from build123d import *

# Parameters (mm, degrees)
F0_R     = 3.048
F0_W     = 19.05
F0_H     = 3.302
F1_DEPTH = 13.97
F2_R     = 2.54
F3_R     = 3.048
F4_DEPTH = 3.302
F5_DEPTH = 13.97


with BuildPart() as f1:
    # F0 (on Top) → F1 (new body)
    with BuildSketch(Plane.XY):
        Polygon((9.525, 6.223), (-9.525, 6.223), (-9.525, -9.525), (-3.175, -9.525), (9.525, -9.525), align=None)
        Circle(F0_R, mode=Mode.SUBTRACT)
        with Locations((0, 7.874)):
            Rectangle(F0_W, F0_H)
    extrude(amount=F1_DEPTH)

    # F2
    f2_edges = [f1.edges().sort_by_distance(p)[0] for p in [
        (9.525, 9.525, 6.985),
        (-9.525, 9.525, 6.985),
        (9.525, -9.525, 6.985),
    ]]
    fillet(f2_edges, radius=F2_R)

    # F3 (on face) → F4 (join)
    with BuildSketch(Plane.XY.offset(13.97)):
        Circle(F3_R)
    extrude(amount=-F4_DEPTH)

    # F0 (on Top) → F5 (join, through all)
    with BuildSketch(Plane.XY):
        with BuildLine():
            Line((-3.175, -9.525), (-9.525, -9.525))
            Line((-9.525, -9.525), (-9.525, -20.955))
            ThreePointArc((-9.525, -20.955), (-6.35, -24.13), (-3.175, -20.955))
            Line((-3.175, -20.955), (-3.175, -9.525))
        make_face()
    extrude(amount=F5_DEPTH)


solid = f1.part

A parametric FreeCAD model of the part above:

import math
import FreeCAD as App
import Part
import Sketcher
Q = App.Units.Quantity


def edges_at(feature, points):
    """Names of the edges that pass closest to the given points."""
    edges = feature.Shape.Edges
    near = lambda p: min(range(len(edges)), key=lambda i: edges[i].distToShape(Part.Vertex(*p))[0])
    return sorted({f"Edge{near(p) + 1}" for p in points})

doc = App.newDocument("Part")
body = doc.addObject("PartDesign::Body", "Body")

# Sketch on XY plane
sketch1 = body.newObject("Sketcher::SketchObject", "Sketch")
sketch1.AttachmentSupport = (doc.getObject("XY_Plane"), [""])
sketch1.MapMode = "FlatFace"
sketch1.addGeometry([
    Part.LineSegment(App.Vector(9.5, -9.5, 0), App.Vector(9.5, 9.5, 0)),  # 0
    Part.LineSegment(App.Vector(9.5, 9.5, 0), App.Vector(-9.5, 9.5, 0)),  # 1
    Part.LineSegment(App.Vector(-9.5, 9.5, 0), App.Vector(-9.5, -9.5, 0)),  # 2
    Part.LineSegment(App.Vector(-9.5, -9.5, 0), App.Vector(9.5, -9.5, 0)),  # 3
    Part.Circle(App.Vector(0, 0, 0), App.Vector(0, 0, 1), 3),  # 4
], False)
sketch1.addConstraint([
    Sketcher.Constraint("Coincident", 0, 2, 1, 1),
    Sketcher.Constraint("Coincident", 1, 2, 2, 1),
    Sketcher.Constraint("Coincident", 2, 2, 3, 1),
    Sketcher.Constraint("Coincident", 3, 2, 0, 1),
    Sketcher.Constraint("Vertical", 0),
    Sketcher.Constraint("Horizontal", 1),
    Sketcher.Constraint("Vertical", 2),
    Sketcher.Constraint("Horizontal", 3),
    Sketcher.Constraint("Coincident", 4, 3, -1, 1),
    Sketcher.Constraint("Symmetric", 0, 2, 2, 2, -1, 1),
    Sketcher.Constraint("Equal", 3, 0),
    Sketcher.Constraint("Diameter", 4, Q("0.24 in")),
    Sketcher.Constraint("DistanceX", 1, 2, 1, 1, Q("0.75 in")),
])
pad1 = body.newObject("PartDesign::Pad", "Pad")
pad1.Profile = sketch1
pad1.Length = Q("0.55 in")
doc.recompute()

fillet = body.newObject("PartDesign::Fillet", "Fillet")
fillet.Base = (pad1, edges_at(pad1, [(9.525, 9.525, 6.985), (-9.525, 9.525, 6.985), (9.525, -9.525, 6.985)]))
fillet.Radius = Q("0.1 in")

# Sketch on XY plane
sketch2 = body.newObject("Sketcher::SketchObject", "Sketch001")
sketch2.AttachmentSupport = (doc.getObject("XY_Plane"), [""])
sketch2.MapMode = "FlatFace"
sketch2.AttachmentOffset = App.Placement(App.Vector(0, 0, 0.55 * 25.4), App.Rotation())
sketch2.addGeometry(Part.Circle(App.Vector(0, 0, 0), App.Vector(0, 0, 1), 3), False)
sketch2.addConstraint([
    Sketcher.Constraint("Coincident", 0, 3, -1, 1),
    Sketcher.Constraint("Diameter", 0, Q("0.24 in")),
])
pad2 = body.newObject("PartDesign::Pad", "Pad001")
pad2.Profile = sketch2
pad2.Length = Q("0.13 in")
pad2.Reversed = True

# Sketch on XY plane
sketch3 = body.newObject("Sketcher::SketchObject", "Sketch002")
sketch3.AttachmentSupport = (doc.getObject("XY_Plane"), [""])
sketch3.MapMode = "FlatFace"
sketch3.addGeometry([
    Part.LineSegment(App.Vector(-3.2, -9.5, 0), App.Vector(-9.5, -9.5, 0)),
    Part.LineSegment(App.Vector(-9.5, -9.5, 0), App.Vector(-9.5, -21, 0)),
    Part.ArcOfCircle(Part.Circle(App.Vector(-6.3, -21, 0), App.Vector(0, 0, 1), 3.2), math.radians(180), math.radians(360)),
    Part.LineSegment(App.Vector(-3.2, -21, 0), App.Vector(-3.2, -9.5, 0)),
], False)
sketch3.addConstraint([
    Sketcher.Constraint("Coincident", 0, 2, 1, 1),
    Sketcher.Constraint("Tangent", 1, 2, 2, 1),
    Sketcher.Constraint("Tangent", 2, 2, 3, 1),
    Sketcher.Constraint("Coincident", 3, 2, 0, 1),
    Sketcher.Constraint("Horizontal", 0),
    Sketcher.Constraint("Vertical", 1),
    Sketcher.Constraint("Vertical", 3),
    Sketcher.Constraint("Radius", 2, Q("0.125 in")),
    Sketcher.Constraint("DistanceY", 1, 2, 1, 1, Q("0.45 in")),
    Sketcher.Constraint("DistanceX", 2, 3, -1, 1, Q("0.25 in")),
    Sketcher.Constraint("DistanceY", 2, 3, -1, 1, Q("0.825 in")),
])
pad3 = body.newObject("PartDesign::Pad", "Pad002")
pad3.Profile = sketch3
pad3.Length = Q("0.55 in")

doc.recompute()
